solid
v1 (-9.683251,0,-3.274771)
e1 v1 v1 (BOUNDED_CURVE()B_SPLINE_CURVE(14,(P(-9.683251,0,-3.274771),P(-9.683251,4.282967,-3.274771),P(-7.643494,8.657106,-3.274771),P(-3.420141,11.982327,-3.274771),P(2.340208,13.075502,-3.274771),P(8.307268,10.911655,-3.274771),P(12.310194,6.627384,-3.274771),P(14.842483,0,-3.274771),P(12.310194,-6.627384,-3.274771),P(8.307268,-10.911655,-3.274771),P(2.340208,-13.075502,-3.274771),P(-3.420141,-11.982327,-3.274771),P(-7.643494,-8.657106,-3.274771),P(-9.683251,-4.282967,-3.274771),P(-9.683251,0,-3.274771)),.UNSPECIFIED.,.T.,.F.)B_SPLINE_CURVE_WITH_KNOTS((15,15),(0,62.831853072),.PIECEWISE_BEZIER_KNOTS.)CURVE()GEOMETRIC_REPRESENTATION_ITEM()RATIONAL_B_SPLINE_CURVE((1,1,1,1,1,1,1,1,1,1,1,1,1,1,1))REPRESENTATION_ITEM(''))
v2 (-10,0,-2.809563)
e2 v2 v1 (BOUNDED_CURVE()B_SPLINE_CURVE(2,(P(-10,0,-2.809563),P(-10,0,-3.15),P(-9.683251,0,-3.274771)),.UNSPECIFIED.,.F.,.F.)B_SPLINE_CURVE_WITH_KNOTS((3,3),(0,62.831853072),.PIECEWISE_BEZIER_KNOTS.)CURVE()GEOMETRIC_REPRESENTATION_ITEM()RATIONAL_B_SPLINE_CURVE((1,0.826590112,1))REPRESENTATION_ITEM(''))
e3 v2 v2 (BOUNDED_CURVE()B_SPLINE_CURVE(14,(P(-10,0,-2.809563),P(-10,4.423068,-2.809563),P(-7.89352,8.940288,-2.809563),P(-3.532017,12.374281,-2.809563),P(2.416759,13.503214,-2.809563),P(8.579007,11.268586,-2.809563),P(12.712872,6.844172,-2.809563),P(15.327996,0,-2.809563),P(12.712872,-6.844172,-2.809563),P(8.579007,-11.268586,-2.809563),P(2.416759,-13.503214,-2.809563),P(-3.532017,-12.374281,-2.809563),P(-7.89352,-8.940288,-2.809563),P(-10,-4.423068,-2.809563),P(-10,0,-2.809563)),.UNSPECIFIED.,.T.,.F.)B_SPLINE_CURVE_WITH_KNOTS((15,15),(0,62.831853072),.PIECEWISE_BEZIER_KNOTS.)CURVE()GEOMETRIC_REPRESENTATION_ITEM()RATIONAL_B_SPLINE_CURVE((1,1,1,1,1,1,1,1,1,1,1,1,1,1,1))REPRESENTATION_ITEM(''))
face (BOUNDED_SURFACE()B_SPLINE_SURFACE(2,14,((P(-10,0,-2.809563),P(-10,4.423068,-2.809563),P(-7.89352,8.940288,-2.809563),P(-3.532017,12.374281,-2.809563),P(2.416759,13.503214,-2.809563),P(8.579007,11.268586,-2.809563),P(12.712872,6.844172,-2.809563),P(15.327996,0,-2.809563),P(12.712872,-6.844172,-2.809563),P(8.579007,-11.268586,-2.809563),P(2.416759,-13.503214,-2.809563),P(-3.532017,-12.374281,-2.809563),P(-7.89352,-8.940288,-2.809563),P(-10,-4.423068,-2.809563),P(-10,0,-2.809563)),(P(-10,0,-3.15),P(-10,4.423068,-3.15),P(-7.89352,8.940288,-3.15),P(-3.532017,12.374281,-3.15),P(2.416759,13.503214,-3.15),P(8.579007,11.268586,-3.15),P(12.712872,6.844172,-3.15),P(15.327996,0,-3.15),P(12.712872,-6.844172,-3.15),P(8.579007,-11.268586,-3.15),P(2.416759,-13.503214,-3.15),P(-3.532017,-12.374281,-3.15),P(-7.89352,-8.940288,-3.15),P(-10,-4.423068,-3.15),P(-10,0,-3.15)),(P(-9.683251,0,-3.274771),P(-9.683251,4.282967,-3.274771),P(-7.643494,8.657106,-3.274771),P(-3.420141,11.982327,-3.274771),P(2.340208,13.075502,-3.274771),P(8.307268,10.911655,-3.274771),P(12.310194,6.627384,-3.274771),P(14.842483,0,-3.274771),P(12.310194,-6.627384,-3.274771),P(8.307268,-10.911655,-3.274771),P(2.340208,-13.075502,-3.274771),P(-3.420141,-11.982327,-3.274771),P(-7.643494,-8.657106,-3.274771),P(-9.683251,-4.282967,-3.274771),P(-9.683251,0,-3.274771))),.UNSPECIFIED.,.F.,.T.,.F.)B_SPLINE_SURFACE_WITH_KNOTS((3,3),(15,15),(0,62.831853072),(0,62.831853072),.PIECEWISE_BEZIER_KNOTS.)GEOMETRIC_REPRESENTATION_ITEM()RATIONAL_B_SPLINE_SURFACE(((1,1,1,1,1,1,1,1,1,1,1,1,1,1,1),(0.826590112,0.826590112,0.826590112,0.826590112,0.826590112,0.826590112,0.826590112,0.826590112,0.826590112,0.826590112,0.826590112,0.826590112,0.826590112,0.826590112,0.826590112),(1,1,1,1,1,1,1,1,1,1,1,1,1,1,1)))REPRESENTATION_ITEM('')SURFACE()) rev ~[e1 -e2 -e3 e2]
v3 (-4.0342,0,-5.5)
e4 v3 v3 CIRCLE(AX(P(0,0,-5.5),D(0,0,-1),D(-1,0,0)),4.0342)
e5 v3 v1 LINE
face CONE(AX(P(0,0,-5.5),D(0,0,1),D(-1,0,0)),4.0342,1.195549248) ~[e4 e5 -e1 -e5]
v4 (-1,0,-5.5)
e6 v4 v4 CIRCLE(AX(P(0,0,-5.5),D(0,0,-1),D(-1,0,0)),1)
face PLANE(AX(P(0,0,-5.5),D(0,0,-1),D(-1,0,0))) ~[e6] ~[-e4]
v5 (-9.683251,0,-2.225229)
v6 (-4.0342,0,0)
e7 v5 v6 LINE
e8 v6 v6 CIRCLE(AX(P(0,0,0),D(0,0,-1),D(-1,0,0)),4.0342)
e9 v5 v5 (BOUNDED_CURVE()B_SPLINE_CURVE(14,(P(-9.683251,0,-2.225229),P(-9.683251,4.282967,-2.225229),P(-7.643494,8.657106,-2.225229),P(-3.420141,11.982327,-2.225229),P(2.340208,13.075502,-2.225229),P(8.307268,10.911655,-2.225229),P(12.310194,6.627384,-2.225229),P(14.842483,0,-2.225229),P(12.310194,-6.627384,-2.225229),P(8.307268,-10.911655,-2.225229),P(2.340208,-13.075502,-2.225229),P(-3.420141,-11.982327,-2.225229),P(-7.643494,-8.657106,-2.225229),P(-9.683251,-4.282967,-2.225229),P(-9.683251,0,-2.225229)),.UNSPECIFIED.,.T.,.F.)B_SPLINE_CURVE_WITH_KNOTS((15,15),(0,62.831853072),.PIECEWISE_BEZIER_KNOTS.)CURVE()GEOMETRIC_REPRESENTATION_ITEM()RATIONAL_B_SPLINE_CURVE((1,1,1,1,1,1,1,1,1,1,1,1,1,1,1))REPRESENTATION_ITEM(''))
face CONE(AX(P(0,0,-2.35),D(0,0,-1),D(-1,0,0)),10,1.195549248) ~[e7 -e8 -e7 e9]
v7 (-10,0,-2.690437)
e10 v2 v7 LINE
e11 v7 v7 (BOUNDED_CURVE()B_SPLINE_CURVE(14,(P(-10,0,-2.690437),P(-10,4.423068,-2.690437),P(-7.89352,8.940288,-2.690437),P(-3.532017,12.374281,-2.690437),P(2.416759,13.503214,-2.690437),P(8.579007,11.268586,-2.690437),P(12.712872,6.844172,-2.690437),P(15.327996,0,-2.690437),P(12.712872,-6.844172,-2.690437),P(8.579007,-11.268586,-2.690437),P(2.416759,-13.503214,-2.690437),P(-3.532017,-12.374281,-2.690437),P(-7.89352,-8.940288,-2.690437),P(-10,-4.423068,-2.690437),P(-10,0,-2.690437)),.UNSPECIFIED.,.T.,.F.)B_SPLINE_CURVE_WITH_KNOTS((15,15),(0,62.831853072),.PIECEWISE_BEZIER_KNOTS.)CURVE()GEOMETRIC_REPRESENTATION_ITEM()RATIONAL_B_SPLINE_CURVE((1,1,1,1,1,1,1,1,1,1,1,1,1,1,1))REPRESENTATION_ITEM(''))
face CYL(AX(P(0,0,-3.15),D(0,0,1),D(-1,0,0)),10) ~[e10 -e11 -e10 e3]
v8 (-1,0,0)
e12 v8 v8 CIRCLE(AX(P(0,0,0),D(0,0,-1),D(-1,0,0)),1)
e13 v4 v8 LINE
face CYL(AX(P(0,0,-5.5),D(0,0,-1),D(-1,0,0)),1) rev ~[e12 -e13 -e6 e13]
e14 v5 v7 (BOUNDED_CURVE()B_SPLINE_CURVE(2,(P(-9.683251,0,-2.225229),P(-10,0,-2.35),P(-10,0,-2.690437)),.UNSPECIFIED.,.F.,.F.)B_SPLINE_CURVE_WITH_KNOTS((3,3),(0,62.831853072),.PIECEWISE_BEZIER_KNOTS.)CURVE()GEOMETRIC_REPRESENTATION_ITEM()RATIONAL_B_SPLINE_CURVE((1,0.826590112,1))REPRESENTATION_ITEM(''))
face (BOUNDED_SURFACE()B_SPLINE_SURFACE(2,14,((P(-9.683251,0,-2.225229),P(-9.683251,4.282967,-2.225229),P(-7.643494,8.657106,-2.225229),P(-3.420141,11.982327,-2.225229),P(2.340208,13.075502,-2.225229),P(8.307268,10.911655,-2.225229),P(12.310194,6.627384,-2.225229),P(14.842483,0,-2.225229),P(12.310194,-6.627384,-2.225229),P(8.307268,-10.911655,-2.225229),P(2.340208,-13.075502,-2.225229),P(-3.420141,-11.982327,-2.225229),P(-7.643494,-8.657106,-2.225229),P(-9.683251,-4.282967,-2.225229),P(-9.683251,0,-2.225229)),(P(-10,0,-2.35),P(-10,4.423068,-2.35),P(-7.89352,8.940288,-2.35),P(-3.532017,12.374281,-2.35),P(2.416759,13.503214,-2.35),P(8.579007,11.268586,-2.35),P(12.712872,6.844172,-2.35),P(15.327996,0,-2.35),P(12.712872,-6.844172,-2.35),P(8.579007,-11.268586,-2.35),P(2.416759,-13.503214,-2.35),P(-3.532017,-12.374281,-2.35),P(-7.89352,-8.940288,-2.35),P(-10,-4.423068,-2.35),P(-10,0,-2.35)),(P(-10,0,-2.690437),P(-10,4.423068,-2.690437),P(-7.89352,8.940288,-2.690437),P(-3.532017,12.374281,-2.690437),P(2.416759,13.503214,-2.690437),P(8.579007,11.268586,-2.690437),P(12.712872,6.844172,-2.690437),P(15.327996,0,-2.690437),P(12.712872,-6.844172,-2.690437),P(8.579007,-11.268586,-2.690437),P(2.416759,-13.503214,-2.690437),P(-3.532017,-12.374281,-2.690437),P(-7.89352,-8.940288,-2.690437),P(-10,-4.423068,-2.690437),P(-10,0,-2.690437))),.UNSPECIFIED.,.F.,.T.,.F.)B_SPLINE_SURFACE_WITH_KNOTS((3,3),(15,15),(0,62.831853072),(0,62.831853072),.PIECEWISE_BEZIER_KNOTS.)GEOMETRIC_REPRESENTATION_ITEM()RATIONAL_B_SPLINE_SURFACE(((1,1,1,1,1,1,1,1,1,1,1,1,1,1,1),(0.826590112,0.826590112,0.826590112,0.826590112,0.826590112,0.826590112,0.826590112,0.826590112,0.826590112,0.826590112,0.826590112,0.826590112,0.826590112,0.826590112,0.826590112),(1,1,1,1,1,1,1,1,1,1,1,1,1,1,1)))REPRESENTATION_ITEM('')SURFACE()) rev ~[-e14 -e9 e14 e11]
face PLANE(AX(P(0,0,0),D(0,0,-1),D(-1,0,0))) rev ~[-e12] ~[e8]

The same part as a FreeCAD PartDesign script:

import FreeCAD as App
import Part
import Sketcher
from FreeCAD import Vector
Q = App.Units.Quantity


def edges_at(feature, points):
    """Names of the edges that pass closest to the given points."""
    edges = feature.Shape.Edges
    near = lambda p: min(range(len(edges)), key=lambda i: edges[i].distToShape(Part.Vertex(*p))[0])
    return sorted({f"Edge{near(p) + 1}" for p in points})


def add_polygon(sketch, points):
    """Adds a closed chain of lines whose ends are joined by coincident constraints."""
    first, n = sketch.GeometryCount, len(points)
    for a, b in zip(points, points[1:] + points[:1]):
        sketch.addGeometry(Part.LineSegment(App.Vector(*a, 0), App.Vector(*b, 0)), False)
    for i in range(n):
        sketch.addConstraint(Sketcher.Constraint("Coincident", first + i, 2, first + (i + 1) % n, 1))

doc = App.newDocument("Part")
body = doc.addObject("PartDesign::Body", "Body")

sketch1 = body.newObject("Sketcher::SketchObject", "Sketch")
sketch1.AttachmentSupport = (doc.getObject("XZ_Plane"), [""])
sketch1.MapMode = "FlatFace"
add_polygon(sketch1, [(-4, 0), (0, 0), (0, -5.5), (-4, -5.5), (-10, -3.1), (-10, -2.4)])
sketch1.addConstraint([
    Sketcher.Constraint("Horizontal", 0),
    Sketcher.Constraint("Vertical", 1),
    Sketcher.Constraint("Horizontal", 2),
    Sketcher.Constraint("Vertical", 4),
    Sketcher.Constraint("Coincident", 0, 2, -1, 1),
    Sketcher.Constraint("Vertical", 2, 2, 5, 2),
    Sketcher.Constraint("Equal", 3, 5),
    Sketcher.Constraint("DistanceY", 1, 2, 1, 1, 5.5),
    Sketcher.Constraint("DistanceY", 4, 1, 4, 2, 0.8),
    Sketcher.Constraint("DistanceX", 3, 2, -1, 1, 10.0),
    Sketcher.Constraint("Angle", 3, Q("158.5 deg")),
])
revolution = body.newObject("PartDesign::Revolution", "Revolution")
revolution.Profile = sketch1
revolution.ReferenceAxis = (sketch1, ["V_Axis"])
revolution.Angle = 360

sketch2 = body.newObject("Sketcher::SketchObject", "Sketch001")
sketch2.AttachmentSupport = (doc.getObject("XY_Plane"), [""])
sketch2.MapMode = "FlatFace"
sketch2.AttachmentOffset = App.Placement(Vector(0, 0, -5.5), App.Rotation())
sketch2.addGeometry(Part.Circle(Vector(0, 0, 0), Vector(0, 0, 1), 1), False)
sketch2.addConstraint([
    Sketcher.Constraint("Coincident", 0, 3, -1, 1),
    Sketcher.Constraint("Diameter", 0, 2.0),
])
pocket1 = body.newObject("PartDesign::Pocket", "Pocket")
pocket1.Profile = sketch2
pocket1.Type = "ThroughAll"
pocket1.Reversed = True
doc.recompute()

fillet = body.newObject("PartDesign::Fillet", "Fillet")
fillet.Base = (pocket1, edges_at(pocket1, [(10, 0, -2.35), (10, 0, -3.15)]))
fillet.Radius = 0.5

doc.recompute()
